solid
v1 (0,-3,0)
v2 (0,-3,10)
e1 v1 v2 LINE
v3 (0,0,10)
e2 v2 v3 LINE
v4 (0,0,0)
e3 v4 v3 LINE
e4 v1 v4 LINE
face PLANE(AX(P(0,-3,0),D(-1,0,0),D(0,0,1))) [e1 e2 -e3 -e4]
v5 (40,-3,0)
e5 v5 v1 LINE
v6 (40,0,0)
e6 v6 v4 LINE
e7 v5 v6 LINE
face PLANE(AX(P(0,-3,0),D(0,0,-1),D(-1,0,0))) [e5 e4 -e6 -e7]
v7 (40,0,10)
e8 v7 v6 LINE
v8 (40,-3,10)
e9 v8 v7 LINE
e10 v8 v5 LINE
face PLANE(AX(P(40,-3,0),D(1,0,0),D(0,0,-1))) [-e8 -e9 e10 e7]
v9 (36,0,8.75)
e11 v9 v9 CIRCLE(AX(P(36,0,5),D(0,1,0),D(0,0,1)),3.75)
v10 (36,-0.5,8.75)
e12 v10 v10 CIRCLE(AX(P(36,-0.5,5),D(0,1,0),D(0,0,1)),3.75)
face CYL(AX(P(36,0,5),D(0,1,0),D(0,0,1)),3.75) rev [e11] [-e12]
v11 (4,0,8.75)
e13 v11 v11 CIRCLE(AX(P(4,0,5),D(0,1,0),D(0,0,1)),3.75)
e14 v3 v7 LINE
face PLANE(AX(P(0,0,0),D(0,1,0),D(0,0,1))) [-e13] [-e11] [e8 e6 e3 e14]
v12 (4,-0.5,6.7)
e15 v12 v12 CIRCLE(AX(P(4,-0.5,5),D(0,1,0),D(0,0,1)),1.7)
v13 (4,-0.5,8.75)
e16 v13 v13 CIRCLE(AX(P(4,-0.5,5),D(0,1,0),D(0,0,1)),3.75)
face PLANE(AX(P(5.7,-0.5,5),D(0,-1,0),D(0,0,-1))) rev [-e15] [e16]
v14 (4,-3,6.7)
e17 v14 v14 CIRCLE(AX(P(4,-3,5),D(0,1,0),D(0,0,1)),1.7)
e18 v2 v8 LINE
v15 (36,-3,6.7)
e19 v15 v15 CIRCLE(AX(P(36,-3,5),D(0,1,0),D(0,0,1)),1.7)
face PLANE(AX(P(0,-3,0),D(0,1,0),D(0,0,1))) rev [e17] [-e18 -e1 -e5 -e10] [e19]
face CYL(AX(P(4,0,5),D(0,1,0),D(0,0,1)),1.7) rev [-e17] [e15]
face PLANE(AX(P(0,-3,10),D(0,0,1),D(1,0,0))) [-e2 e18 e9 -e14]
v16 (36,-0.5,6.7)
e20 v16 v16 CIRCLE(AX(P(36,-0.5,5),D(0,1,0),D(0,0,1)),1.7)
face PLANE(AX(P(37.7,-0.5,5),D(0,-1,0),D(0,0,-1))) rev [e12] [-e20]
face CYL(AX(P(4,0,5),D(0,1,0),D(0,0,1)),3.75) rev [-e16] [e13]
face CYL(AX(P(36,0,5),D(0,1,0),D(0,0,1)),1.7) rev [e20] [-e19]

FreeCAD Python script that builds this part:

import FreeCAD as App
import Part
import Sketcher

V = App.Vector
Q = App.Units.Quantity

doc = App.newDocument("Part")
body = doc.addObject("PartDesign::Body", "Body")

# Sketch on XZ plane
sketch1 = body.newObject("Sketcher::SketchObject", "Sketch")
sketch1.AttachmentSupport = (doc.getObject("XZ_Plane"), [""])
sketch1.MapMode = "FlatFace"
sketch1.addGeometry([
    Part.LineSegment(V(0, 0, 0), V(0, 10, 0)),
    Part.LineSegment(V(0, 10, 0), V(40, 10, 0)),
    Part.LineSegment(V(40, 10, 0), V(40, 0, 0)),
    Part.LineSegment(V(40, 0, 0), V(0, 0, 0)),
], False)
sketch1.addConstraint([
    Sketcher.Constraint("Coincident", 0, 2, 1, 1),
    Sketcher.Constraint("Coincident", 1, 2, 2, 1),
    Sketcher.Constraint("Coincident", 2, 2, 3, 1),
    Sketcher.Constraint("Coincident", 3, 2, 0, 1),
    Sketcher.Constraint("Vertical", 0),
    Sketcher.Constraint("Horizontal", 1),
    Sketcher.Constraint("Vertical", 2),
    Sketcher.Constraint("Horizontal", 3),
    Sketcher.Constraint("Coincident", 3, 2, -1, 1),
    Sketcher.Constraint("DistanceX", 1, 1, 1, 2, Q("40 mm")),
    Sketcher.Constraint("DistanceY", 0, 1, 0, 2, Q("10 mm")),
])
pad1 = body.newObject("PartDesign::Pad", "Pad")
pad1.Profile = sketch1
pad1.Length = 3

# Sketch on XZ plane
sketch2 = body.newObject("Sketcher::SketchObject", "Sketch001")
sketch2.AttachmentSupport = (doc.getObject("XZ_Plane"), [""])
sketch2.MapMode = "FlatFace"
sketch2.addGeometry([
    Part.Circle(V(4, 5, 0), V(0, 0, 1), 1.7),
    Part.Circle(V(36, 5, 0), V(0, 0, 1), 1.7),
], False)
sketch2.addConstraint([
    Sketcher.Constraint("Equal", 0, 1),
    Sketcher.Constraint("Horizontal", 0, 3, 1, 3),
    Sketcher.Constraint("Diameter", 0, Q("3.4 mm")),
    Sketcher.Constraint("DistanceX", -1, 1, 0, 3, Q("4 mm")),
    Sketcher.Constraint("DistanceY", -1, 1, 0, 3, Q("5 mm")),
    Sketcher.Constraint("DistanceX", -1, 1, 1, 3, Q("36 mm")),
])
doc.recompute()
hole = body.newObject("PartDesign::Hole", "Hole")
hole.Profile = sketch2
hole.ThreadType = "None"
hole.Diameter = 3.4
hole.DepthType = "Dimension"
hole.Depth = 3
hole.DrillPoint = "Flat"
hole.HoleCutType = "Counterbore"
hole.HoleCutDiameter = 7.5
hole.HoleCutDepth = 0.5
hole.Reversed = True

doc.recompute()
